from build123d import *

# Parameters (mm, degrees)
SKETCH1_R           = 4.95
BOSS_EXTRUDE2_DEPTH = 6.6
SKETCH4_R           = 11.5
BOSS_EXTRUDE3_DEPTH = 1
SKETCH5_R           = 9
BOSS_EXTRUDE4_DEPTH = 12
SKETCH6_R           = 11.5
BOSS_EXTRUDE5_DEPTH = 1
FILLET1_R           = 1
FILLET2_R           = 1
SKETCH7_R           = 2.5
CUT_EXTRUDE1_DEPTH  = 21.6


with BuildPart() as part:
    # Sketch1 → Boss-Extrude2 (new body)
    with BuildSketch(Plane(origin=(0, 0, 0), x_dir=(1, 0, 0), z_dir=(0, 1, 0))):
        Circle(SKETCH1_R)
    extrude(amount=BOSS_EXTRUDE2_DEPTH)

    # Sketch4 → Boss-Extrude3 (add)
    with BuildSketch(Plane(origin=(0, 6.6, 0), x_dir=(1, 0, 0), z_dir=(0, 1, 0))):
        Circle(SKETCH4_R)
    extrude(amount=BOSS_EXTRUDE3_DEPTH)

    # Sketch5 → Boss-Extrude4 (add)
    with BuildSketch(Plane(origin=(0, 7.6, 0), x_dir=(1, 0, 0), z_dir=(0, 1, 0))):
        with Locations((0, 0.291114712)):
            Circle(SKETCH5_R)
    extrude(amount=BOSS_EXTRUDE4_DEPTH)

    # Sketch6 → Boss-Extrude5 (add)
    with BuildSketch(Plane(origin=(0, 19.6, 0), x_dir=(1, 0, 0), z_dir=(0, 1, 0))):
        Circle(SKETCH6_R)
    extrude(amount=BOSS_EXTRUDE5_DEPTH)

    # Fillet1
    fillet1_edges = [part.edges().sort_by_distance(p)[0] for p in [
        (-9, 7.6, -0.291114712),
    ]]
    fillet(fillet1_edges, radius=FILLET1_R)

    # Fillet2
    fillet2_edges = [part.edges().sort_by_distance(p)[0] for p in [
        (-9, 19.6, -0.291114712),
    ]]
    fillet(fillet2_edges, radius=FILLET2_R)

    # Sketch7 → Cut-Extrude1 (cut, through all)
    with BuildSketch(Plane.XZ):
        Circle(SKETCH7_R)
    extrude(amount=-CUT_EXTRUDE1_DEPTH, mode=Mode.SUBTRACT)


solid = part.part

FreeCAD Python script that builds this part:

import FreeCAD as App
import Part
import Sketcher


def edges_at(feature, points):
    """Names of the edges that pass closest to the given points."""
    edges = feature.Shape.Edges
    near = lambda p: min(range(len(edges)), key=lambda i: edges[i].distToShape(Part.Vertex(*p))[0])
    return sorted({f"Edge{near(p) + 1}" for p in points})

doc = App.newDocument("Part")
body = doc.addObject("PartDesign::Body", "Body")

# Sketch on XZ plane
sketch1 = doc.addObject("Sketcher::SketchObject", "Sketch")
body.addObject(sketch1)
sketch1.AttachmentSupport = (doc.XZ_Plane, [""])
sketch1.MapMode = "FlatFace"
sketch1.addGeometry(Part.Circle(App.Vector(0, 0, 0), App.Vector(0, 0, 1), 5), False)
sketch1.addConstraint(Sketcher.Constraint("Coincident", 0, 3, -1, 1))
sketch1.addConstraint(Sketcher.Constraint("Diameter", 0, 9.9))
pad1 = doc.addObject("PartDesign::Pad", "Pad")
body.addObject(pad1)
pad1.Profile = sketch1
pad1.Length = 6.6
pad1.Reversed = True

# Sketch on XZ plane
sketch2 = doc.addObject("Sketcher::SketchObject", "Sketch001")
body.addObject(sketch2)
sketch2.AttachmentSupport = (doc.XZ_Plane, [""])
sketch2.MapMode = "FlatFace"
sketch2.AttachmentOffset = App.Placement(App.Vector(0, 0, -6.6), App.Rotation())
sketch2.addGeometry(Part.Circle(App.Vector(0, 0, 0), App.Vector(0, 0, 1), 12), False)
sketch2.addConstraint(Sketcher.Constraint("Coincident", 0, 3, -1, 1))
sketch2.addConstraint(Sketcher.Constraint("Diameter", 0, 23.0))
pad2 = doc.addObject("PartDesign::Pad", "Pad001")
body.addObject(pad2)
pad2.Profile = sketch2
pad2.Length = 1
pad2.Reversed = True

# Sketch on XZ plane
sketch3 = doc.addObject("Sketcher::SketchObject", "Sketch002")
body.addObject(sketch3)
sketch3.AttachmentSupport = (doc.XZ_Plane, [""])
sketch3.MapMode = "FlatFace"
sketch3.AttachmentOffset = App.Placement(App.Vector(0, 0, -7.6), App.Rotation())
sketch3.addGeometry(Part.Circle(App.Vector(0, 0, 0), App.Vector(0, 0, 1), 9), False)
sketch3.addConstraint(Sketcher.Constraint("PointOnObject", 0, 3, -2))
sketch3.addConstraint(Sketcher.Constraint("Diameter", 0, 18.0))
sketch3.addConstraint(Sketcher.Constraint("DistanceY", 0, 3, -1, 1, 0.291115))
pad3 = doc.addObject("PartDesign::Pad", "Pad002")
body.addObject(pad3)
pad3.Profile = sketch3
pad3.Length = 12
pad3.Reversed = True

# Sketch on XZ plane
sketch4 = doc.addObject("Sketcher::SketchObject", "Sketch003")
body.addObject(sketch4)
sketch4.AttachmentSupport = (doc.XZ_Plane, [""])
sketch4.MapMode = "FlatFace"
sketch4.AttachmentOffset = App.Placement(App.Vector(0, 0, -19.6), App.Rotation())
sketch4.addGeometry(Part.Circle(App.Vector(0, 0, 0), App.Vector(0, 0, 1), 12), False)
sketch4.addConstraint(Sketcher.Constraint("Coincident", 0, 3, -1, 1))
sketch4.addConstraint(Sketcher.Constraint("Diameter", 0, 23.0))
pad4 = doc.addObject("PartDesign::Pad", "Pad003")
body.addObject(pad4)
pad4.Profile = sketch4
pad4.Length = 1
pad4.Reversed = True
doc.recompute()

fillet = doc.addObject("PartDesign::Fillet", "Fillet")
body.addObject(fillet)
fillet.Base = (pad4, edges_at(pad4, [(-9, 7.6, -0.291)]))
fillet.Radius = 1
doc.recompute()

fillet2 = doc.addObject("PartDesign::Fillet", "Fillet001")
body.addObject(fillet2)
fillet2.Base = (fillet, edges_at(fillet, [(-9, 19.6, -0.291)]))
fillet2.Radius = 1

# Sketch on XZ plane
sketch5 = doc.addObject("Sketcher::SketchObject", "Sketch004")
body.addObject(sketch5)
sketch5.AttachmentSupport = (doc.XZ_Plane, [""])
sketch5.MapMode = "FlatFace"
sketch5.addGeometry(Part.Circle(App.Vector(0, 0, 0), App.Vector(0, 0, 1), 2.5), False)
sketch5.addConstraint(Sketcher.Constraint("Coincident", 0, 3, -1, 1))
sketch5.addConstraint(Sketcher.Constraint("Diameter", 0, 5.0))
pocket1 = doc.addObject("PartDesign::Pocket", "Pocket")
body.addObject(pocket1)
pocket1.Profile = sketch5
pocket1.Type = "ThroughAll"

doc.recompute()
